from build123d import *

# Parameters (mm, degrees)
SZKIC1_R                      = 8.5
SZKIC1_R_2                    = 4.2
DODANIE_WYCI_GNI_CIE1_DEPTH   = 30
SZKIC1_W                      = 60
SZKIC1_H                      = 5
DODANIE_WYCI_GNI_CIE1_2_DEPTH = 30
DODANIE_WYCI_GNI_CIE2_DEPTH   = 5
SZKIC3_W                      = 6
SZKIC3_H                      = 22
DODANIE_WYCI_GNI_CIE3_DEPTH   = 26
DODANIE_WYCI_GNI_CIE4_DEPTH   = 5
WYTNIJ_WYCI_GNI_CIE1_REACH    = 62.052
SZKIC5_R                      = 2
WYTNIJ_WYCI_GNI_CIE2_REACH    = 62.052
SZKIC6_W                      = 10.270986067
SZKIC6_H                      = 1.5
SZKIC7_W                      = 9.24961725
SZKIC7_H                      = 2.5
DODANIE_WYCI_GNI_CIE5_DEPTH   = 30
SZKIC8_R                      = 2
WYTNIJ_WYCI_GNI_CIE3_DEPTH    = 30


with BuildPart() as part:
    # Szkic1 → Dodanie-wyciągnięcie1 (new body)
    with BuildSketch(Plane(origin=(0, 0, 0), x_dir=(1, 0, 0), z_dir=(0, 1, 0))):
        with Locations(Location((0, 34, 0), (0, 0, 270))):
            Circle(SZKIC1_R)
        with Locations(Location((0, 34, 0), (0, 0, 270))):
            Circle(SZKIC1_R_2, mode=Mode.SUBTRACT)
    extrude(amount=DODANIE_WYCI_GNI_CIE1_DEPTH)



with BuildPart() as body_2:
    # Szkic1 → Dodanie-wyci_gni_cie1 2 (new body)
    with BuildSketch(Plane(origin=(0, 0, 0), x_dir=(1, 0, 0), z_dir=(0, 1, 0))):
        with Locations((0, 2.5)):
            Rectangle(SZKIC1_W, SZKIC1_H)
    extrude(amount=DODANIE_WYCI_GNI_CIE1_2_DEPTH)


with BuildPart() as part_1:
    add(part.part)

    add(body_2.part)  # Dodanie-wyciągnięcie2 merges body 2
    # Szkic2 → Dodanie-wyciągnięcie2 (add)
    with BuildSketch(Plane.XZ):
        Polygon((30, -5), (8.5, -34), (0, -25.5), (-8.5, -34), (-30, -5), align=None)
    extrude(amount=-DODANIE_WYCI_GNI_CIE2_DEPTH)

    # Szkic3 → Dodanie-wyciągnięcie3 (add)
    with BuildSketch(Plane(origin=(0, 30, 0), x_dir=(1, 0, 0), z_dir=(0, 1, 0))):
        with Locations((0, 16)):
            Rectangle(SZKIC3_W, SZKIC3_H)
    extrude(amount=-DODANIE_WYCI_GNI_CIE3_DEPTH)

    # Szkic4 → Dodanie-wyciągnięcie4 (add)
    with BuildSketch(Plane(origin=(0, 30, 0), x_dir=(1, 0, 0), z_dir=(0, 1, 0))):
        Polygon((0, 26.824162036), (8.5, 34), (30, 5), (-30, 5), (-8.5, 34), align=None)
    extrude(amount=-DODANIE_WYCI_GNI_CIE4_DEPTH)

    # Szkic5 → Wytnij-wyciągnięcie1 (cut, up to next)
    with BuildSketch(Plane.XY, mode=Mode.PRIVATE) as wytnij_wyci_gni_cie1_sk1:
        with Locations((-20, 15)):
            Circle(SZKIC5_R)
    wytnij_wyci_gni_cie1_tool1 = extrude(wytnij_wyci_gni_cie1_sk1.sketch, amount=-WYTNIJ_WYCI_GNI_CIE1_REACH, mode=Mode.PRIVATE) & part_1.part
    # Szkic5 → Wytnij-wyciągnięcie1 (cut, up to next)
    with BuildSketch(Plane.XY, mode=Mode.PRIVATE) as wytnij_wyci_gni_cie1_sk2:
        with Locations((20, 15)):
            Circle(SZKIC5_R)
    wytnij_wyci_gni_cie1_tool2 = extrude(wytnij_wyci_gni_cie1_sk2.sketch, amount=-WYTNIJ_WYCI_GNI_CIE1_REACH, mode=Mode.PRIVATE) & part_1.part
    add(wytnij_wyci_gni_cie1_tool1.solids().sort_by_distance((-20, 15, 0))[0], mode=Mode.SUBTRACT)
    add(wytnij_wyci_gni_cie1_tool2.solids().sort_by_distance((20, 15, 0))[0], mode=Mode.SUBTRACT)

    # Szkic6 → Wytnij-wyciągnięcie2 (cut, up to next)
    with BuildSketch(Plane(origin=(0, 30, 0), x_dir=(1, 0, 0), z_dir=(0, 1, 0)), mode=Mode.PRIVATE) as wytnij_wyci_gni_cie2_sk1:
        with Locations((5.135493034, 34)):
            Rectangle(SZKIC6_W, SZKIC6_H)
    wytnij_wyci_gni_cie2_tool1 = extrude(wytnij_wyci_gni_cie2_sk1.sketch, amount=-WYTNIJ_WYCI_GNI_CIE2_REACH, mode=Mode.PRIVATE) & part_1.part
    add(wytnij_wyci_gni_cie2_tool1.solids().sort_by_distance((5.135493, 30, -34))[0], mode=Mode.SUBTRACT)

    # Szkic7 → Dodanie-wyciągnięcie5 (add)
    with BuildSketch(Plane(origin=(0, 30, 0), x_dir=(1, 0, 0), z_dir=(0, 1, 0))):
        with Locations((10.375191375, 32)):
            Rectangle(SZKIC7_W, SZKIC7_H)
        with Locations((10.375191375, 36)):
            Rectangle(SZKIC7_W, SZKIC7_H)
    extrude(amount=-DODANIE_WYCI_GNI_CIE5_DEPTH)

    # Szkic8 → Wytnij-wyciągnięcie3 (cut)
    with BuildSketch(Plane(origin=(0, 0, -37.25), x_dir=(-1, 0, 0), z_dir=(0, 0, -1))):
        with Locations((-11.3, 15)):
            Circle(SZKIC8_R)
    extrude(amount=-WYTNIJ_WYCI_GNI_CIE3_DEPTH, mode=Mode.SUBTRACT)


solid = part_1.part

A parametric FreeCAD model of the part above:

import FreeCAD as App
import Part
import Sketcher


def add_polygon(sketch, points):
    """Adds a closed chain of lines whose ends are joined by coincident constraints."""
    first, n = sketch.GeometryCount, len(points)
    for a, b in zip(points, points[1:] + points[:1]):
        sketch.addGeometry(Part.LineSegment(App.Vector(*a, 0), App.Vector(*b, 0)), False)
    for i in range(n):
        sketch.addConstraint(Sketcher.Constraint("Coincident", first + i, 2, first + (i + 1) % n, 1))

doc = App.newDocument("Part")
body = doc.addObject("PartDesign::Body", "Body")

# Sketch on XZ plane
sketch1 = body.newObject("Sketcher::SketchObject", "Sketch")
sketch1.AttachmentSupport = (doc.getObject("XZ_Plane"), [""])
sketch1.MapMode = "FlatFace"
sketch1.addGeometry(Part.Circle(App.Vector(0, -34, 0), App.Vector(0, 0, 1), 8.5), False)
sketch1.addGeometry(Part.Circle(App.Vector(0, -34, 0), App.Vector(0, 0, 1), 4.2), False)
sketch1.addConstraint(Sketcher.Constraint("Coincident", 1, 3, 0, 3))
sketch1.addConstraint(Sketcher.Constraint("PointOnObject", 0, 3, -2))
sketch1.addConstraint(Sketcher.Constraint("Diameter", 0, 17.0))
sketch1.addConstraint(Sketcher.Constraint("Diameter", 1, 8.4))
sketch1.addConstraint(Sketcher.Constraint("DistanceY", 0, 3, -1, 1, 34.0))
pad1 = body.newObject("PartDesign::Pad", "Pad")
pad1.Profile = sketch1
pad1.Length = 30
pad1.Reversed = True
body2 = doc.addObject("PartDesign::Body", "Body001")

# Sketch on XZ plane
sketch2 = body2.newObject("Sketcher::SketchObject", "Sketch001")
sketch2.AttachmentSupport = (doc.getObject("XZ_Plane001"), [""])
sketch2.MapMode = "FlatFace"
add_polygon(sketch2, [(-30, -5), (-30, 0), (30, 0), (30, -5)])  # lines 0-3
sketch2.addConstraint(Sketcher.Constraint("Vertical", 0))
sketch2.addConstraint(Sketcher.Constraint("Horizontal", 1))
sketch2.addConstraint(Sketcher.Constraint("Vertical", 2))
sketch2.addConstraint(Sketcher.Constraint("Horizontal", 3))
sketch2.addConstraint(Sketcher.Constraint("Symmetric", 0, 2, 1, 2, -1, 1))
sketch2.addConstraint(Sketcher.Constraint("DistanceX", 1, 1, 1, 2, 60.0))
sketch2.addConstraint(Sketcher.Constraint("DistanceY", 0, 1, 0, 2, 5.0))
pad2 = body2.newObject("PartDesign::Pad", "Pad001")
pad2.Profile = sketch2
pad2.Length = 30
pad2.Reversed = True
body.AllowCompound = True
doc.recompute()

boolean = body.newObject("PartDesign::Boolean", "Boolean")
boolean.Type = "Fuse"
boolean.addObjects([body2])

# Sketch on XZ plane
sketch3 = body.newObject("Sketcher::SketchObject", "Sketch002")
sketch3.AttachmentSupport = (doc.getObject("XZ_Plane"), [""])
sketch3.MapMode = "FlatFace"
add_polygon(sketch3, [(8, -34), (30, -5), (-30, -5), (-8, -34), (0, -26)])  # lines 0-4
sketch3.addConstraint(Sketcher.Constraint("Horizontal", 1))
sketch3.addConstraint(Sketcher.Constraint("Symmetric", 2, 2, 4, 2, -2))
sketch3.addConstraint(Sketcher.Constraint("PointOnObject", 3, 2, -2))
sketch3.addConstraint(Sketcher.Constraint("Perpendicular", 3, 4))
sketch3.addConstraint(Sketcher.Constraint("Equal", 0, 2))
sketch3.addConstraint(Sketcher.Constraint("DistanceX", 1, 2, 1, 1, 60.0))
sketch3.addConstraint(Sketcher.Constraint("DistanceY", 0, 2, -1, 1, 5.0))
sketch3.addConstraint(Sketcher.Constraint("DistanceY", 2, 2, -1, 1, 34.0))
sketch3.addConstraint(Sketcher.Constraint("DistanceX", 2, 2, 4, 2, 17.0))
pad3 = body.newObject("PartDesign::Pad", "Pad002")
pad3.Profile = sketch3
pad3.Length = 5
pad3.Reversed = True

# Sketch on XZ plane
sketch4 = body.newObject("Sketcher::SketchObject", "Sketch003")
sketch4.AttachmentSupport = (doc.getObject("XZ_Plane"), [""])
sketch4.MapMode = "FlatFace"
sketch4.AttachmentOffset = App.Placement(App.Vector(0, 0, -30), App.Rotation())
add_polygon(sketch4, [(-3, -27), (-3, -5), (3, -5), (3, -27)])  # lines 0-3
sketch4.addConstraint(Sketcher.Constraint("Vertical", 0))
sketch4.addConstraint(Sketcher.Constraint("Horizontal", 1))
sketch4.addConstraint(Sketcher.Constraint("Vertical", 2))
sketch4.addConstraint(Sketcher.Constraint("Horizontal", 3))
sketch4.addConstraint(Sketcher.Constraint("DistanceX", 1, 1, 1, 2, 6.0))
sketch4.addConstraint(Sketcher.Constraint("DistanceY", 0, 1, 0, 2, 22.0))
sketch4.addConstraint(Sketcher.Constraint("DistanceX", 0, 2, -1, 1, 3.0))
sketch4.addConstraint(Sketcher.Constraint("DistanceY", 0, 2, -1, 1, 5.0))
pad4 = body.newObject("PartDesign::Pad", "Pad003")
pad4.Profile = sketch4
pad4.Length = 26

# Sketch on XZ plane
sketch5 = body.newObject("Sketcher::SketchObject", "Sketch004")
sketch5.AttachmentSupport = (doc.getObject("XZ_Plane"), [""])
sketch5.MapMode = "FlatFace"
sketch5.AttachmentOffset = App.Placement(App.Vector(0, 0, -30), App.Rotation())
add_polygon(sketch5, [(8, -34), (0, -27), (-8, -34), (-30, -5), (30, -5)])  # lines 0-4
sketch5.addConstraint(Sketcher.Constraint("Horizontal", 3))
sketch5.addConstraint(Sketcher.Constraint("Symmetric", 1, 2, 4, 2, -2))
sketch5.addConstraint(Sketcher.Constraint("PointOnObject", 0, 2, -2))
sketch5.addConstraint(Sketcher.Constraint("Equal", 2, 4))
sketch5.addConstraint(Sketcher.Constraint("DistanceX", 3, 1, 3, 2, 60.0))
sketch5.addConstraint(Sketcher.Constraint("DistanceY", 1, 2, -1, 1, 34.0))
sketch5.addConstraint(Sketcher.Constraint("DistanceY", 2, 2, -1, 1, 5.0))
sketch5.addConstraint(Sketcher.Constraint("DistanceX", 1, 2, 4, 2, 17.0))
sketch5.addConstraint(Sketcher.Constraint("Distance", 0, 11.123967))
pad5 = body.newObject("PartDesign::Pad", "Pad004")
pad5.Profile = sketch5
pad5.Length = 5

# Sketch on XY plane
sketch6 = body.newObject("Sketcher::SketchObject", "Sketch005")
sketch6.AttachmentSupport = (doc.getObject("XY_Plane"), [""])
sketch6.MapMode = "FlatFace"
sketch6.addGeometry(Part.Circle(App.Vector(-20, 15, 0), App.Vector(0, 0, 1), 2), False)
sketch6.addConstraint(Sketcher.Constraint("Diameter", 0, 4.0))
sketch6.addConstraint(Sketcher.Constraint("DistanceX", 0, 3, -1, 1, 20.0))
sketch6.addConstraint(Sketcher.Constraint("DistanceY", -1, 1, 0, 3, 15.0))
pocket1 = body.newObject("PartDesign::Pocket", "Pocket")
pocket1.Profile = sketch6
pocket1.Type = "UpToFirst"

# Sketch on XY plane
sketch7 = body.newObject("Sketcher::SketchObject", "Sketch006")
sketch7.AttachmentSupport = (doc.getObject("XY_Plane"), [""])
sketch7.MapMode = "FlatFace"
sketch7.addGeometry(Part.Circle(App.Vector(20, 15, 0), App.Vector(0, 0, 1), 2), False)
sketch7.addConstraint(Sketcher.Constraint("Diameter", 0, 4.0))
sketch7.addConstraint(Sketcher.Constraint("DistanceX", -1, 1, 0, 3, 20.0))
sketch7.addConstraint(Sketcher.Constraint("DistanceY", -1, 1, 0, 3, 15.0))
pocket2 = body.newObject("PartDesign::Pocket", "Pocket001")
pocket2.Profile = sketch7
pocket2.Type = "UpToFirst"

# Sketch on XZ plane
sketch8 = body.newObject("Sketcher::SketchObject", "Sketch007")
sketch8.AttachmentSupport = (doc.getObject("XZ_Plane"), [""])
sketch8.MapMode = "FlatFace"
sketch8.AttachmentOffset = App.Placement(App.Vector(0, 0, -30), App.Rotation())
add_polygon(sketch8, [(0, -34.8), (0, -33.2), (10.3, -33.2), (10.3, -34.8)])  # lines 0-3
sketch8.addConstraint(Sketcher.Constraint("Vertical", 0))
sketch8.addConstraint(Sketcher.Constraint("Horizontal", 1))
sketch8.addConstraint(Sketcher.Constraint("Vertical", 2))
sketch8.addConstraint(Sketcher.Constraint("Horizontal", 3))
sketch8.addConstraint(Sketcher.Constraint("PointOnObject", 0, 2, -2))
sketch8.addConstraint(Sketcher.Constraint("DistanceY", 0, 1, 0, 2, 1.5))
sketch8.addConstraint(Sketcher.Constraint("DistanceY", 0, 2, -1, 1, 33.25))
sketch8.addConstraint(Sketcher.Constraint("DistanceX", 1, 1, 1, 2, 10.270986))
pocket3 = body.newObject("PartDesign::Pocket", "Pocket002")
pocket3.Profile = sketch8
pocket3.Type = "UpToFirst"
pocket3.Reversed = True

# Sketch on XZ plane
sketch9 = body.newObject("Sketcher::SketchObject", "Sketch008")
sketch9.AttachmentSupport = (doc.getObject("XZ_Plane"), [""])
sketch9.MapMode = "FlatFace"
sketch9.AttachmentOffset = App.Placement(App.Vector(0, 0, -30), App.Rotation())
add_polygon(sketch9, [(5.8, -33.2), (5.8, -30.8), (15, -30.8), (15, -33.2)])  # lines 0-3
add_polygon(sketch9, [(5.8, -37.2), (5.8, -34.8), (15, -34.8), (15, -37.2)])  # lines 4-7
sketch9.addConstraint(Sketcher.Constraint("Vertical", 0))
sketch9.addConstraint(Sketcher.Constraint("Horizontal", 1))
sketch9.addConstraint(Sketcher.Constraint("Vertical", 2))
sketch9.addConstraint(Sketcher.Constraint("Horizontal", 3))
sketch9.addConstraint(Sketcher.Constraint("Vertical", 4))
sketch9.addConstraint(Sketcher.Constraint("Horizontal", 5))
sketch9.addConstraint(Sketcher.Constraint("Vertical", 6))
sketch9.addConstraint(Sketcher.Constraint("Horizontal", 7))
sketch9.addConstraint(Sketcher.Constraint("Vertical", 3, 2, 4, 2))
sketch9.addConstraint(Sketcher.Constraint("Vertical", 2, 2, 5, 2))
sketch9.addConstraint(Sketcher.Constraint("Equal", 2, 4))
sketch9.addConstraint(Sketcher.Constraint("DistanceY", 0, 1, 0, 2, 2.5))
sketch9.addConstraint(Sketcher.Constraint("DistanceX", -1, 1, 1, 2, 15.0))
sketch9.addConstraint(Sketcher.Constraint("DistanceY", 4, 2, 0, 2, 4.0))
sketch9.addConstraint(Sketcher.Constraint("DistanceY", 0, 2, -1, 1, 30.75))
sketch9.addConstraint(Sketcher.Constraint("DistanceX", 1, 1, 1, 2, 9.249617))
pad6 = body.newObject("PartDesign::Pad", "Pad005")
pad6.Profile = sketch9
pad6.Length = 30

# Sketch on XY plane
sketch10 = body.newObject("Sketcher::SketchObject", "Sketch009")
sketch10.AttachmentSupport = (doc.getObject("XY_Plane"), [""])
sketch10.MapMode = "FlatFace"
sketch10.AttachmentOffset = App.Placement(App.Vector(0, 0, -37.25), App.Rotation())
sketch10.addGeometry(Part.Circle(App.Vector(11.3, 15, 0), App.Vector(0, 0, 1), 2), False)
sketch10.addConstraint(Sketcher.Constraint("Diameter", 0, 4.0))
sketch10.addConstraint(Sketcher.Constraint("DistanceY", -1, 1, 0, 3, 15.0))
sketch10.addConstraint(Sketcher.Constraint("DistanceX", -1, 1, 0, 3, 11.3))
pocket4 = body.newObject("PartDesign::Pocket", "Pocket003")
pocket4.Profile = sketch10
pocket4.Length = 30
pocket4.Reversed = True

doc.recompute()
